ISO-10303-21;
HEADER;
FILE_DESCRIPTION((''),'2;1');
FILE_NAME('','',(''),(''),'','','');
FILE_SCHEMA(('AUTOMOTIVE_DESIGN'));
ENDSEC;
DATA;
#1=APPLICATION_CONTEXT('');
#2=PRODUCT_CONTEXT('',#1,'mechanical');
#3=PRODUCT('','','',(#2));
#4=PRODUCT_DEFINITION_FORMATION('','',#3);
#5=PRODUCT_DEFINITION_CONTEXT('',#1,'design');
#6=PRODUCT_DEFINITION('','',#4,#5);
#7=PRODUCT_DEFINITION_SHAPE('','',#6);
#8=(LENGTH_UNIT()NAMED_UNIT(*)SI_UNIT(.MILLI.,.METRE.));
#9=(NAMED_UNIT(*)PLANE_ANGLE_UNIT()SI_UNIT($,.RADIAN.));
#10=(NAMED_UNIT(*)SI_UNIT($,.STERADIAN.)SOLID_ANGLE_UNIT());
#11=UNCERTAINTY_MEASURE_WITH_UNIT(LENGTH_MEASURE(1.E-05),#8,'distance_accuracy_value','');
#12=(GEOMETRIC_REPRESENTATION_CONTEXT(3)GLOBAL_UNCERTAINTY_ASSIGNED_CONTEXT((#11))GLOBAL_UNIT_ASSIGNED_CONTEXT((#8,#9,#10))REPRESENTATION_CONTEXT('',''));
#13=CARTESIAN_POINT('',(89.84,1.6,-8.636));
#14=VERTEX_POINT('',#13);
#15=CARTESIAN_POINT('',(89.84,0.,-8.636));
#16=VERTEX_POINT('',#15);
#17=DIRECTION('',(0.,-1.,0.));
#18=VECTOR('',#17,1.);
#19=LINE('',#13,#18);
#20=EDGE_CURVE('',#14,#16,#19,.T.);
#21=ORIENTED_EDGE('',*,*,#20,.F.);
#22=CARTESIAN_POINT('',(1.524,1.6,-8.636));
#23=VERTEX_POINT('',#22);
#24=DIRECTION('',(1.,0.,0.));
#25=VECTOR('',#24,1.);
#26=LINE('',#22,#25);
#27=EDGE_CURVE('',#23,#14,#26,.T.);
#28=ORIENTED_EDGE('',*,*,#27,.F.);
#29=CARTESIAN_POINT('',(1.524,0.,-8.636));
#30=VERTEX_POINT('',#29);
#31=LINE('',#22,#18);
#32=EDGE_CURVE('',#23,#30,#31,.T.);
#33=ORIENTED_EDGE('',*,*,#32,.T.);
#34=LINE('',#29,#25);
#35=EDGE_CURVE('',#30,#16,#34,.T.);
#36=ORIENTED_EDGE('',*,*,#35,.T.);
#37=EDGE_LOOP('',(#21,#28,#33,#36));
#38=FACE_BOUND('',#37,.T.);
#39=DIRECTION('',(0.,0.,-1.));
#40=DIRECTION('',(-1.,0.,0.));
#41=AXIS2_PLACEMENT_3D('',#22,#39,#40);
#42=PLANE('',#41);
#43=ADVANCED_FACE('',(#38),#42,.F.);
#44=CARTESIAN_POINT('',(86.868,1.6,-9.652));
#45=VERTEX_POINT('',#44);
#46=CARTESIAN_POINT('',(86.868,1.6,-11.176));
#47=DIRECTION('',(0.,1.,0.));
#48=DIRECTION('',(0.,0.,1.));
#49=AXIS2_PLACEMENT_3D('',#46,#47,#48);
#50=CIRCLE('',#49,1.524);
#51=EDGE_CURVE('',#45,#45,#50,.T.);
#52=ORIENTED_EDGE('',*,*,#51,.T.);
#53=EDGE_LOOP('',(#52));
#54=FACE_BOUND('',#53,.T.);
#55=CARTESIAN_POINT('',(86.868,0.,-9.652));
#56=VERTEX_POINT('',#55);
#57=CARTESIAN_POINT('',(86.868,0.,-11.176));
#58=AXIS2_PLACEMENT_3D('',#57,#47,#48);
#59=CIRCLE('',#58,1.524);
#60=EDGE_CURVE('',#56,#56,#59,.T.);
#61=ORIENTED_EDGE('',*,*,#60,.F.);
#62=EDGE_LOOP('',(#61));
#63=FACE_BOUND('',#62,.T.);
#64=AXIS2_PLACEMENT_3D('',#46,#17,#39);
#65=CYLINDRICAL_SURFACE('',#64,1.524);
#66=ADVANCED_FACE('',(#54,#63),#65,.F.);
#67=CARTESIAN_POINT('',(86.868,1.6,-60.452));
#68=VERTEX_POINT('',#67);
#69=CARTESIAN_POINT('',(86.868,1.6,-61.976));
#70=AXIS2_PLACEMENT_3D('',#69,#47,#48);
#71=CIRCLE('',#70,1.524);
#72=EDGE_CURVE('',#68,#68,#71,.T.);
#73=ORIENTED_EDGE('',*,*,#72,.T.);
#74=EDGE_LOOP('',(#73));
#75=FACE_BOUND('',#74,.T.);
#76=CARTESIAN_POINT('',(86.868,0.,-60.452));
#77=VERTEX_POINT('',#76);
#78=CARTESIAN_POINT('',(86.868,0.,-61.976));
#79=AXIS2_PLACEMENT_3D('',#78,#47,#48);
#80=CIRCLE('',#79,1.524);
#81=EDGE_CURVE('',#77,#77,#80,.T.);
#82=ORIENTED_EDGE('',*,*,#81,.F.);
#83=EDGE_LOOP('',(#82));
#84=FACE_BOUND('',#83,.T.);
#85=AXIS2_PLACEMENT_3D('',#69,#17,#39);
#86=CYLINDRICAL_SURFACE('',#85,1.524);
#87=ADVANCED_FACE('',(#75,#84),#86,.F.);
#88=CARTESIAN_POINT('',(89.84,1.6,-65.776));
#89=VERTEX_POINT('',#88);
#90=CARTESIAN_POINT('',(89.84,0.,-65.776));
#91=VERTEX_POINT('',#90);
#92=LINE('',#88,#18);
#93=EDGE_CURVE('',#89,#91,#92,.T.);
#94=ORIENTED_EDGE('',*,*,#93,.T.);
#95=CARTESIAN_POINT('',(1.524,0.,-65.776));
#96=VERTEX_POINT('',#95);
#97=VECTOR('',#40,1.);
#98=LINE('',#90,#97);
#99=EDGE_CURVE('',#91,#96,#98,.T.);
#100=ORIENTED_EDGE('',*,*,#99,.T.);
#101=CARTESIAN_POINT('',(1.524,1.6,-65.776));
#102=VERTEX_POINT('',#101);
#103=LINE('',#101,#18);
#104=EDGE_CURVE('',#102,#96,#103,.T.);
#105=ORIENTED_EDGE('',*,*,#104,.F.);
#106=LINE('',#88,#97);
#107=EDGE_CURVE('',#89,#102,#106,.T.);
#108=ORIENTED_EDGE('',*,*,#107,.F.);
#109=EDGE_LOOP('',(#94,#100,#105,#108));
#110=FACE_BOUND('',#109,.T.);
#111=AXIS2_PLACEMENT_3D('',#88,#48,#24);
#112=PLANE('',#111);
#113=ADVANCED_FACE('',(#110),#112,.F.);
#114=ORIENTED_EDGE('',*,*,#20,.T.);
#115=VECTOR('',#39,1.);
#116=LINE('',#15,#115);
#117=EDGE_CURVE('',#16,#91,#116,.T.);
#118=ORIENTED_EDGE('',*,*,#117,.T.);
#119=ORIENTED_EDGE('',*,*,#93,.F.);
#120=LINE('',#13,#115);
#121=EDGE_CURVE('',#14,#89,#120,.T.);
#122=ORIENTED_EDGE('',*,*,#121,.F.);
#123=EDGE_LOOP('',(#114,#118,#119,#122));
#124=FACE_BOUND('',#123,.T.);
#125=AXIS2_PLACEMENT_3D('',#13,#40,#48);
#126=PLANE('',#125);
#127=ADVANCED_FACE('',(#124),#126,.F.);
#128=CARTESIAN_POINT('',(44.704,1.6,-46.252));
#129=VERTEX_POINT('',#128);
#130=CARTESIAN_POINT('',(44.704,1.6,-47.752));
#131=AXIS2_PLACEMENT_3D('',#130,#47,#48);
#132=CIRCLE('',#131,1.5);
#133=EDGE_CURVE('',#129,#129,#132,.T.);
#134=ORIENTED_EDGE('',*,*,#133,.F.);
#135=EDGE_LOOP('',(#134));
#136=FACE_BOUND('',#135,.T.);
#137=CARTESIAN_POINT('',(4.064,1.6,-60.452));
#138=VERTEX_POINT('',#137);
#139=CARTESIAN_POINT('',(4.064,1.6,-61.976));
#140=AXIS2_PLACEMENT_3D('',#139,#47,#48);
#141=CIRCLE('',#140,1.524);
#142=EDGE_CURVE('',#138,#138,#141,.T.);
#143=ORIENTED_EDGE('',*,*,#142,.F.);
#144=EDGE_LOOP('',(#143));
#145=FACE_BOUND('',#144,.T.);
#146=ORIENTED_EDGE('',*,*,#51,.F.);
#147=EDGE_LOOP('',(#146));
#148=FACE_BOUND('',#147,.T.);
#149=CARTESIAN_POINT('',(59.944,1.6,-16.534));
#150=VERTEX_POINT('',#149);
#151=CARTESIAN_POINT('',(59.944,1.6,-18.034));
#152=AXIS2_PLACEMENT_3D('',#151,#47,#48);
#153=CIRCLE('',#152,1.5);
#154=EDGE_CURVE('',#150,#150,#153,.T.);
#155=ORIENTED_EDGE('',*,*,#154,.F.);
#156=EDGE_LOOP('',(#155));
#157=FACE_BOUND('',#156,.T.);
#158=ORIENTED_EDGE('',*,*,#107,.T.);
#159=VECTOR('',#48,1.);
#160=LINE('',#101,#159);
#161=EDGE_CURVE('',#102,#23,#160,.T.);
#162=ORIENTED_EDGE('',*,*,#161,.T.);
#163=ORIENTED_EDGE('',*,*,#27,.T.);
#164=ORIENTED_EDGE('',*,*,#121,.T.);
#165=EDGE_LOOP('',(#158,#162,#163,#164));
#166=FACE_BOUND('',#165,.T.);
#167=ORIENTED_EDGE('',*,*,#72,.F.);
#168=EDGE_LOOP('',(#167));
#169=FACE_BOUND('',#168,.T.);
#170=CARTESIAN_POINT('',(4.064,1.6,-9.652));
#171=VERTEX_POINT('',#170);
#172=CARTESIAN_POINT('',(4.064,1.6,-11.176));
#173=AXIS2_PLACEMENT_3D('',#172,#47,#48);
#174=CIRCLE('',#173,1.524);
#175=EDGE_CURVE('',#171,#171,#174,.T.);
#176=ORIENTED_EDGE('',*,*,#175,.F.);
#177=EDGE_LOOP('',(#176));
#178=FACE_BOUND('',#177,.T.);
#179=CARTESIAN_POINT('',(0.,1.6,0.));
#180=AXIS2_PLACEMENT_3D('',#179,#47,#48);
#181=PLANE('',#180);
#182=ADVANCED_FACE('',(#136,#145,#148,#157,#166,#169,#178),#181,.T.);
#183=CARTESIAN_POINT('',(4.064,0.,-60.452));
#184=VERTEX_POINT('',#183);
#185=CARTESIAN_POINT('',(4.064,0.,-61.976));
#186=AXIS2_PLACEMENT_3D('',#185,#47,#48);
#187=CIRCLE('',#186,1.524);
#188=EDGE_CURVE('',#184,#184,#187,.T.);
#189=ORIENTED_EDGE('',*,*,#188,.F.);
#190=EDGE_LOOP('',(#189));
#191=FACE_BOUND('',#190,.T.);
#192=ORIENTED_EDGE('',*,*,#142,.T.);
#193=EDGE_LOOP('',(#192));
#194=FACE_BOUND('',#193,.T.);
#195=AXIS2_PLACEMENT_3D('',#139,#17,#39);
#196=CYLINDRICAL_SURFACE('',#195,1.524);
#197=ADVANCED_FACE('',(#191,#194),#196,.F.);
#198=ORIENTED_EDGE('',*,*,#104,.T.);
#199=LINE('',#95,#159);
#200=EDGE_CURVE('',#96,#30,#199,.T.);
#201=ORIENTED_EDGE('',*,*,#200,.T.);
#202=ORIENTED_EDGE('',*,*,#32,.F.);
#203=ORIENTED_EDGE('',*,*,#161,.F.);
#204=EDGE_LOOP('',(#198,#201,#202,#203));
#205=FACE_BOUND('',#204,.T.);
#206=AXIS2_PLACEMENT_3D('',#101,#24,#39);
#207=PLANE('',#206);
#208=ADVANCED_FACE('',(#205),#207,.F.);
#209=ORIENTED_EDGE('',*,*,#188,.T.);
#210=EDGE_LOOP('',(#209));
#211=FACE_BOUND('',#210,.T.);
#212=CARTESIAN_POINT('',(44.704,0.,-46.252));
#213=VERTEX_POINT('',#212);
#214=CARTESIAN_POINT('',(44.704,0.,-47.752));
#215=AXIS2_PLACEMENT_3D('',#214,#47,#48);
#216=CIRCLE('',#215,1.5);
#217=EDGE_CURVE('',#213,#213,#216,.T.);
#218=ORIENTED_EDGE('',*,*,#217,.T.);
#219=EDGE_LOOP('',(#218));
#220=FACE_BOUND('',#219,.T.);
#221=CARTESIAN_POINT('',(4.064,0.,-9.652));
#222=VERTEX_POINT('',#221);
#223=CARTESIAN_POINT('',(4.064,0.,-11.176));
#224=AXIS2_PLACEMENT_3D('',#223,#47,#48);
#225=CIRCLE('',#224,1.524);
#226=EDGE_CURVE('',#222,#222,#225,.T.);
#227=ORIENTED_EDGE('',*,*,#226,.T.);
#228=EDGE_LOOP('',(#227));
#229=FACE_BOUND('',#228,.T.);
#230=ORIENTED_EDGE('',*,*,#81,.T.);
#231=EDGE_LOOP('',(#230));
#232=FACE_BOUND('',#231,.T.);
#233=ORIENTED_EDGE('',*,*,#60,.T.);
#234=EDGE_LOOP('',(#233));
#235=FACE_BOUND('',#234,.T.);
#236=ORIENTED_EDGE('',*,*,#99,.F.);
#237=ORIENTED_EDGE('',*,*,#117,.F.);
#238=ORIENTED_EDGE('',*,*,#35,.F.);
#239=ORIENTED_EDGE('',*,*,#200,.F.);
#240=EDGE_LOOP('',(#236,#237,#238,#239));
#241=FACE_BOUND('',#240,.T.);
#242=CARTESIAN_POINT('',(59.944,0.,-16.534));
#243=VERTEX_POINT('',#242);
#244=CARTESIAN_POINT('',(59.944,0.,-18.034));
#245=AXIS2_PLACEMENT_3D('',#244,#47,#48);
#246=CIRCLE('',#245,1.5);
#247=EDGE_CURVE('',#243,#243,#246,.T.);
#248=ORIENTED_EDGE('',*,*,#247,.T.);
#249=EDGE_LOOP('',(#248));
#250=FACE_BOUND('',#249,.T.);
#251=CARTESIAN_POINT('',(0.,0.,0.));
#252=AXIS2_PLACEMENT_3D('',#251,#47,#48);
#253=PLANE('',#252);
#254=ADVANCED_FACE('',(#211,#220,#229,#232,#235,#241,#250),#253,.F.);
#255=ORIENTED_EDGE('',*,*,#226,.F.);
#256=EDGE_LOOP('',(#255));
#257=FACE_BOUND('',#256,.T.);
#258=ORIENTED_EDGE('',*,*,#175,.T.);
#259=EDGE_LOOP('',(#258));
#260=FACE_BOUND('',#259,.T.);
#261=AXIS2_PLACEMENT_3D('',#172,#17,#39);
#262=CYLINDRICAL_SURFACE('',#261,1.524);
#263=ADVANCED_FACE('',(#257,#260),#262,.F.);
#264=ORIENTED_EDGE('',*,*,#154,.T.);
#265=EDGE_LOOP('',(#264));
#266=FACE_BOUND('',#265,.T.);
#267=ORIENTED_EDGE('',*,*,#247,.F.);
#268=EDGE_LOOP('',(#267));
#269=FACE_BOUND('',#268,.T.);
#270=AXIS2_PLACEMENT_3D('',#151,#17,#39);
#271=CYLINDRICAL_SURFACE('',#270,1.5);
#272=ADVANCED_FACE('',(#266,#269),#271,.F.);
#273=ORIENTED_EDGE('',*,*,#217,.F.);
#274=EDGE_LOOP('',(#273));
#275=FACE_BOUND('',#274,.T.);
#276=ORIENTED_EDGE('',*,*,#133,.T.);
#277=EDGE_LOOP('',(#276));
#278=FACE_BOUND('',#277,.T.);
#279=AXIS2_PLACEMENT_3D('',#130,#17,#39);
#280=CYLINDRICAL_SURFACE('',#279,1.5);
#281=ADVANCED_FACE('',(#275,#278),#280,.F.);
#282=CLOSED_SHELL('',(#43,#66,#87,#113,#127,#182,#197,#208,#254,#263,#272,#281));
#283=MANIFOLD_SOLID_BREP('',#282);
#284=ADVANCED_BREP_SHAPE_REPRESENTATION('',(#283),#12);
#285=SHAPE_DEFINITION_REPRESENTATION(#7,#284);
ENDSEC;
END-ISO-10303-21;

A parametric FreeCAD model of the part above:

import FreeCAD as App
import Part
import Sketcher
from FreeCAD import Vector
Q = App.Units.Quantity


def add_polygon(sketch, points):
    """Adds a closed chain of lines whose ends are joined by coincident constraints."""
    first, n = sketch.GeometryCount, len(points)
    for a, b in zip(points, points[1:] + points[:1]):
        sketch.addGeometry(Part.LineSegment(App.Vector(*a, 0), App.Vector(*b, 0)), False)
    for i in range(n):
        sketch.addConstraint(Sketcher.Constraint("Coincident", first + i, 2, first + (i + 1) % n, 1))

doc = App.newDocument("Part")
body = doc.addObject("PartDesign::Body", "Body")

sketch1 = doc.addObject("Sketcher::SketchObject", "Sketch")
body.addObject(sketch1)
sketch1.AttachmentSupport = (doc.XZ_Plane, [""])
sketch1.MapMode = "FlatFace"
add_polygon(sketch1, [(1.524, -65.776), (1.524, -8.636), (89.84, -8.636), (89.84, -65.776)])
sketch1.addGeometry(Part.Circle(Vector(4.064, -11.176, 0), Vector(0, 0, 1), 1.524), False)
sketch1.addGeometry(Part.Circle(Vector(59.944, -18.034, 0), Vector(0, 0, 1), 1.5), False)
sketch1.addGeometry(Part.Circle(Vector(86.868, -11.176, 0), Vector(0, 0, 1), 1.524), False)
sketch1.addGeometry(Part.Circle(Vector(44.704, -47.752, 0), Vector(0, 0, 1), 1.5), False)
sketch1.addGeometry(Part.Circle(Vector(4.064, -61.976, 0), Vector(0, 0, 1), 1.524), False)
sketch1.addGeometry(Part.Circle(Vector(86.868, -61.976, 0), Vector(0, 0, 1), 1.524), False)
sketch1.addConstraint(Sketcher.Constraint("Vertical", 0))
sketch1.addConstraint(Sketcher.Constraint("Horizontal", 1))
sketch1.addConstraint(Sketcher.Constraint("Vertical", 2))
sketch1.addConstraint(Sketcher.Constraint("Horizontal", 3))
sketch1.addConstraint(Sketcher.Constraint("Equal", 4, 6))
sketch1.addConstraint(Sketcher.Constraint("Equal", 5, 7))
sketch1.addConstraint(Sketcher.Constraint("Equal", 6, 8))
sketch1.addConstraint(Sketcher.Constraint("Equal", 8, 9))
sketch1.addConstraint(Sketcher.Constraint("Horizontal", 4, 3, 6, 3))
sketch1.addConstraint(Sketcher.Constraint("Horizontal", 8, 3, 9, 3))
sketch1.addConstraint(Sketcher.Constraint("Vertical", 4, 3, 8, 3))
sketch1.addConstraint(Sketcher.Constraint("Vertical", 6, 3, 9, 3))
sketch1.addConstraint(Sketcher.Constraint("Diameter", 5, Q("3 mm")))
sketch1.addConstraint(Sketcher.Constraint("Diameter", 4, Q("3.048 mm")))
sketch1.addConstraint(Sketcher.Constraint("DistanceY", 0, 1, 0, 2, Q("57.14 mm")))
sketch1.addConstraint(Sketcher.Constraint("DistanceY", 8, 3, 4, 3, Q("50.8 mm")))
sketch1.addConstraint(Sketcher.Constraint("DistanceY", 2, 2, 9, 3, Q("3.8 mm")))
sketch1.addConstraint(Sketcher.Constraint("DistanceX", 1, 1, 1, 2, Q("88.316 mm")))
sketch1.addConstraint(Sketcher.Constraint("DistanceX", -1, 1, 1, 2, Q("89.84 mm")))
sketch1.addConstraint(Sketcher.Constraint("DistanceX", 4, 3, 5, 3, Q("55.88 mm")))
sketch1.addConstraint(Sketcher.Constraint("DistanceX", 7, 3, 5, 3, Q("15.24 mm")))
sketch1.addConstraint(Sketcher.Constraint("DistanceX", 0, 2, 4, 3, Q("2.54 mm")))
sketch1.addConstraint(Sketcher.Constraint("DistanceY", 4, 3, -1, 1, Q("11.176 mm")))
sketch1.addConstraint(Sketcher.Constraint("DistanceY", 5, 3, -1, 1, Q("18.034 mm")))
sketch1.addConstraint(Sketcher.Constraint("DistanceX", -1, 1, 6, 3, Q("86.868 mm")))
sketch1.addConstraint(Sketcher.Constraint("DistanceY", 7, 3, -1, 1, Q("47.752 mm")))
pad1 = doc.addObject("PartDesign::Pad", "Pad")
body.addObject(pad1)
pad1.Profile = sketch1
pad1.Length = 1.6
pad1.Reversed = True

doc.recompute()
